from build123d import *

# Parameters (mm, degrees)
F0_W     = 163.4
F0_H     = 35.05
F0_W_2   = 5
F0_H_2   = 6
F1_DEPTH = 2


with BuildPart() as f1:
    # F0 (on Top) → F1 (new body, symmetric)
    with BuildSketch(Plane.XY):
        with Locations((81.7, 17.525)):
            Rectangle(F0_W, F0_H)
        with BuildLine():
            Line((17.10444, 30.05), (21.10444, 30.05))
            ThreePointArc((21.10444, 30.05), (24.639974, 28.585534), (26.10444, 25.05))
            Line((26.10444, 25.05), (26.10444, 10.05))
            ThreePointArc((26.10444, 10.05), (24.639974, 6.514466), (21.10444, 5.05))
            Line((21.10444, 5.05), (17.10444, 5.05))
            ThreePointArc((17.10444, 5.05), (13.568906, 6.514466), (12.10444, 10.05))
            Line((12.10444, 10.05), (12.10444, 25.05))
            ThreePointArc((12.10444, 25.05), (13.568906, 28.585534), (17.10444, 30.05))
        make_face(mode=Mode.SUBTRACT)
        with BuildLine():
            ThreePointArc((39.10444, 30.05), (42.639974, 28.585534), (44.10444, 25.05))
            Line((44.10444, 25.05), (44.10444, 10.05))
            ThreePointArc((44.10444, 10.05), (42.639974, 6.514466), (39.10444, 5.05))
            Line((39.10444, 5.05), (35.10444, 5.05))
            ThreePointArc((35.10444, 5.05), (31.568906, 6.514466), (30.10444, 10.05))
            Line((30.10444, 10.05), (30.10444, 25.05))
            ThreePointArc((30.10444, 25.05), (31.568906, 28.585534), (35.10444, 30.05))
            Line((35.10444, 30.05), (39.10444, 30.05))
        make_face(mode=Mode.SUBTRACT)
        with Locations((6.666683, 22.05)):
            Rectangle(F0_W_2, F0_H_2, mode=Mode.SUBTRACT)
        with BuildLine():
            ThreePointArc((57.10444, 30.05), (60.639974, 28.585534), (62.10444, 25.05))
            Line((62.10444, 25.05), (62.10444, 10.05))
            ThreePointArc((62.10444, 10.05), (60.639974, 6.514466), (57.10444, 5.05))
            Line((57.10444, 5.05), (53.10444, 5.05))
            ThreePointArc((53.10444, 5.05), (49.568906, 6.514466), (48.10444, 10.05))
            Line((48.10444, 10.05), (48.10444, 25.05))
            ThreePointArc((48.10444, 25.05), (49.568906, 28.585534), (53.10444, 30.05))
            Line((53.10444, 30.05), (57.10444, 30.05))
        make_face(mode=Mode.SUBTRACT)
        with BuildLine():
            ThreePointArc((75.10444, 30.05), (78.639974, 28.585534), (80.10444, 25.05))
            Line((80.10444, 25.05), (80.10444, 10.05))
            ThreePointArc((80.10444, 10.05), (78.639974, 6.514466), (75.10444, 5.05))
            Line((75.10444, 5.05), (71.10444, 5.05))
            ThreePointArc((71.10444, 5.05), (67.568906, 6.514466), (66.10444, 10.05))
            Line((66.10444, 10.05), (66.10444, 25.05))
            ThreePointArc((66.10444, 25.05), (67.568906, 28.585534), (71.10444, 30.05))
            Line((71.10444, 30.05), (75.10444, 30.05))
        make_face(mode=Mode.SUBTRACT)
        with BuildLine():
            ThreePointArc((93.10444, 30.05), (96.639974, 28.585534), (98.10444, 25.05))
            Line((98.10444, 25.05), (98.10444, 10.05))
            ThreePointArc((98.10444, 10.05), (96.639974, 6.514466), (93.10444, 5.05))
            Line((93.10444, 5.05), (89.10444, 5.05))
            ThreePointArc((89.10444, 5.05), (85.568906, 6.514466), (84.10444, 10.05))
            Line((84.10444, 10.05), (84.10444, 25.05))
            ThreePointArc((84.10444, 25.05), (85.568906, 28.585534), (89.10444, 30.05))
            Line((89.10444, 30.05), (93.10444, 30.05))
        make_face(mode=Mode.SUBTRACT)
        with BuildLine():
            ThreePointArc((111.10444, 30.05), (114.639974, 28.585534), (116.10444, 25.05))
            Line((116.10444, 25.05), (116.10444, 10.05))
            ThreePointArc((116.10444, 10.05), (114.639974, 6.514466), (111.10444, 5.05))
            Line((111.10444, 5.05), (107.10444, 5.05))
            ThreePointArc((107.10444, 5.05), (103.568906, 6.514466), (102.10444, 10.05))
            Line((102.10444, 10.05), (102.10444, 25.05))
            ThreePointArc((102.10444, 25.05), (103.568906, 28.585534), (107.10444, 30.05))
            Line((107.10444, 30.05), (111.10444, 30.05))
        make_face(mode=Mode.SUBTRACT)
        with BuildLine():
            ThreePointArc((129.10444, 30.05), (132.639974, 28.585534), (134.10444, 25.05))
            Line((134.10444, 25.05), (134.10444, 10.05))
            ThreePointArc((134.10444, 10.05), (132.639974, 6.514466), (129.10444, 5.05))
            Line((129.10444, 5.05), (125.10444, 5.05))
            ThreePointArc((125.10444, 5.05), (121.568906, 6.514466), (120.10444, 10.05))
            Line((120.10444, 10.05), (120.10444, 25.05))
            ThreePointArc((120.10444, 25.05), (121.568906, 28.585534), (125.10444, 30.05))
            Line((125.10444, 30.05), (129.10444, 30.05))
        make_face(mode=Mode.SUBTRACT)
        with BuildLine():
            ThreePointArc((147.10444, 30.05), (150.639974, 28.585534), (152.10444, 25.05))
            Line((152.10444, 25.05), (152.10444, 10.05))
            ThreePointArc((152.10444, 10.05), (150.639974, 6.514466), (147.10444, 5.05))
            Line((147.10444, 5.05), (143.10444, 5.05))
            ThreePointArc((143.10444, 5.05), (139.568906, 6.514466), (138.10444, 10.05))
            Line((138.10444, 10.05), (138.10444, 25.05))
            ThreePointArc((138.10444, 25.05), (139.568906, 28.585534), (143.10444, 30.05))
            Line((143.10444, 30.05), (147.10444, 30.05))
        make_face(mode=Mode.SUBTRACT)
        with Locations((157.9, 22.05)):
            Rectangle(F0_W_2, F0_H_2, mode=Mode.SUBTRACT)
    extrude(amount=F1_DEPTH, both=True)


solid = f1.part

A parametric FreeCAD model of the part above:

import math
import FreeCAD as App
import Part
import Sketcher

V = App.Vector


def add_polygon(sketch, points):
    """Adds a closed chain of lines whose ends are joined by coincident constraints."""
    first, n = sketch.GeometryCount, len(points)
    for a, b in zip(points, points[1:] + points[:1]):
        sketch.addGeometry(Part.LineSegment(App.Vector(*a, 0), App.Vector(*b, 0)), False)
    for i in range(n):
        sketch.addConstraint(Sketcher.Constraint("Coincident", first + i, 2, first + (i + 1) % n, 1))

doc = App.newDocument("Part")
body = doc.addObject("PartDesign::Body", "Body")

sketch1 = body.newObject("Sketcher::SketchObject", "Sketch")
sketch1.AttachmentSupport = (doc.getObject("XY_Plane"), [""])
sketch1.MapMode = "FlatFace"
add_polygon(sketch1, [(0, 35.05), (0, 0), (163.4, 0), (163.4, 35.05)])
sketch1.addGeometry(Part.ArcOfCircle(Part.Circle(V(17.10444, 25.05, 0), V(0, 0, 1), 5), math.radians(89.999996), math.radians(180.000004)), False)
sketch1.addGeometry(Part.LineSegment(V(17.10444, 30.05, 0), V(21.10444, 30.05, 0)), False)
sketch1.addGeometry(Part.ArcOfCircle(Part.Circle(V(21.10444, 25.05, 0), V(0, 0, 1), 5), math.radians(-0.000004), math.radians(90.000004)), False)
sketch1.addGeometry(Part.LineSegment(V(26.10444, 25.05, 0), V(26.10444, 10.05, 0)), False)
sketch1.addGeometry(Part.ArcOfCircle(Part.Circle(V(21.10444, 10.05, 0), V(0, 0, 1), 5), math.radians(-90.000004), math.radians(0.000004)), False)
sketch1.addGeometry(Part.LineSegment(V(21.10444, 5.05, 0), V(17.10444, 5.05, 0)), False)
sketch1.addGeometry(Part.ArcOfCircle(Part.Circle(V(17.10444, 10.05, 0), V(0, 0, 1), 5), math.radians(179.999996), math.radians(270.000004)), False)
sketch1.addGeometry(Part.LineSegment(V(12.10444, 10.05, 0), V(12.10444, 25.05, 0)), False)
sketch1.addGeometry(Part.LineSegment(V(35.10444, 30.05, 0), V(39.10444, 30.05, 0)), False)
sketch1.addGeometry(Part.ArcOfCircle(Part.Circle(V(39.10444, 25.05, 0), V(0, 0, 1), 5), math.radians(-0.000004), math.radians(90.000004)), False)
sketch1.addGeometry(Part.LineSegment(V(44.10444, 25.05, 0), V(44.10444, 10.05, 0)), False)
sketch1.addGeometry(Part.ArcOfCircle(Part.Circle(V(39.10444, 10.05, 0), V(0, 0, 1), 5), math.radians(-90.000004), math.radians(0.000004)), False)
sketch1.addGeometry(Part.LineSegment(V(39.10444, 5.05, 0), V(35.10444, 5.05, 0)), False)
sketch1.addGeometry(Part.ArcOfCircle(Part.Circle(V(35.10444, 10.05, 0), V(0, 0, 1), 5), math.radians(179.999996), math.radians(270.000004)), False)
sketch1.addGeometry(Part.LineSegment(V(30.10444, 10.05, 0), V(30.10444, 25.05, 0)), False)
sketch1.addGeometry(Part.ArcOfCircle(Part.Circle(V(35.10444, 25.05, 0), V(0, 0, 1), 5), math.radians(89.999996), math.radians(180.000004)), False)
add_polygon(sketch1, [(9.166683, 19.05), (4.166683, 19.05), (4.166683, 25.05), (9.166683, 25.05)])
sketch1.addGeometry(Part.LineSegment(V(53.10444, 30.05, 0), V(57.10444, 30.05, 0)), False)
sketch1.addGeometry(Part.ArcOfCircle(Part.Circle(V(57.10444, 25.05, 0), V(0, 0, 1), 5), math.radians(-0.000004), math.radians(90.000004)), False)
sketch1.addGeometry(Part.LineSegment(V(62.10444, 25.05, 0), V(62.10444, 10.05, 0)), False)
sketch1.addGeometry(Part.ArcOfCircle(Part.Circle(V(57.10444, 10.05, 0), V(0, 0, 1), 5), math.radians(-90.000004), math.radians(0.000004)), False)
sketch1.addGeometry(Part.LineSegment(V(57.10444, 5.05, 0), V(53.10444, 5.05, 0)), False)
sketch1.addGeometry(Part.ArcOfCircle(Part.Circle(V(53.10444, 10.05, 0), V(0, 0, 1), 5), math.radians(179.999996), math.radians(270.000004)), False)
sketch1.addGeometry(Part.LineSegment(V(48.10444, 10.05, 0), V(48.10444, 25.05, 0)), False)
sketch1.addGeometry(Part.ArcOfCircle(Part.Circle(V(53.10444, 25.05, 0), V(0, 0, 1), 5), math.radians(89.999996), math.radians(180.000004)), False)
sketch1.addGeometry(Part.LineSegment(V(71.10444, 30.05, 0), V(75.10444, 30.05, 0)), False)
sketch1.addGeometry(Part.ArcOfCircle(Part.Circle(V(75.10444, 25.05, 0), V(0, 0, 1), 5), math.radians(-0.000004), math.radians(90.000004)), False)
sketch1.addGeometry(Part.LineSegment(V(80.10444, 25.05, 0), V(80.10444, 10.05, 0)), False)
sketch1.addGeometry(Part.ArcOfCircle(Part.Circle(V(75.10444, 10.05, 0), V(0, 0, 1), 5), math.radians(-90.000004), math.radians(0.000004)), False)
sketch1.addGeometry(Part.LineSegment(V(75.10444, 5.05, 0), V(71.10444, 5.05, 0)), False)
sketch1.addGeometry(Part.ArcOfCircle(Part.Circle(V(71.10444, 10.05, 0), V(0, 0, 1), 5), math.radians(179.999996), math.radians(270.000004)), False)
sketch1.addGeometry(Part.LineSegment(V(66.10444, 10.05, 0), V(66.10444, 25.05, 0)), False)
sketch1.addGeometry(Part.ArcOfCircle(Part.Circle(V(71.10444, 25.05, 0), V(0, 0, 1), 5), math.radians(89.999996), math.radians(180.000004)), False)
sketch1.addGeometry(Part.LineSegment(V(89.10444, 30.05, 0), V(93.10444, 30.05, 0)), False)
sketch1.addGeometry(Part.ArcOfCircle(Part.Circle(V(93.10444, 25.05, 0), V(0, 0, 1), 5), math.radians(-0.000004), math.radians(90.000004)), False)
sketch1.addGeometry(Part.LineSegment(V(98.10444, 25.05, 0), V(98.10444, 10.05, 0)), False)
sketch1.addGeometry(Part.ArcOfCircle(Part.Circle(V(93.10444, 10.05, 0), V(0, 0, 1), 5), math.radians(-90.000004), math.radians(0.000004)), False)
sketch1.addGeometry(Part.LineSegment(V(93.10444, 5.05, 0), V(89.10444, 5.05, 0)), False)
sketch1.addGeometry(Part.ArcOfCircle(Part.Circle(V(89.10444, 10.05, 0), V(0, 0, 1), 5), math.radians(179.999996), math.radians(270.000004)), False)
sketch1.addGeometry(Part.LineSegment(V(84.10444, 10.05, 0), V(84.10444, 25.05, 0)), False)
sketch1.addGeometry(Part.ArcOfCircle(Part.Circle(V(89.10444, 25.05, 0), V(0, 0, 1), 5), math.radians(89.999996), math.radians(180.000004)), False)
sketch1.addGeometry(Part.LineSegment(V(107.10444, 30.05, 0), V(111.10444, 30.05, 0)), False)
sketch1.addGeometry(Part.ArcOfCircle(Part.Circle(V(111.10444, 25.05, 0), V(0, 0, 1), 5), math.radians(-0.000004), math.radians(90.000004)), False)
sketch1.addGeometry(Part.LineSegment(V(116.10444, 25.05, 0), V(116.10444, 10.05, 0)), False)
sketch1.addGeometry(Part.ArcOfCircle(Part.Circle(V(111.10444, 10.05, 0), V(0, 0, 1), 5), math.radians(-90.000004), math.radians(0.000004)), False)
sketch1.addGeometry(Part.LineSegment(V(111.10444, 5.05, 0), V(107.10444, 5.05, 0)), False)
sketch1.addGeometry(Part.ArcOfCircle(Part.Circle(V(107.10444, 10.05, 0), V(0, 0, 1), 5), math.radians(179.999996), math.radians(270.000004)), False)
sketch1.addGeometry(Part.LineSegment(V(102.10444, 10.05, 0), V(102.10444, 25.05, 0)), False)
sketch1.addGeometry(Part.ArcOfCircle(Part.Circle(V(107.10444, 25.05, 0), V(0, 0, 1), 5), math.radians(89.999996), math.radians(180.000004)), False)
sketch1.addGeometry(Part.LineSegment(V(125.10444, 30.05, 0), V(129.10444, 30.05, 0)), False)
sketch1.addGeometry(Part.ArcOfCircle(Part.Circle(V(129.10444, 25.05, 0), V(0, 0, 1), 5), math.radians(-0.000004), math.radians(90.000004)), False)
sketch1.addGeometry(Part.LineSegment(V(134.10444, 25.05, 0), V(134.10444, 10.05, 0)), False)
sketch1.addGeometry(Part.ArcOfCircle(Part.Circle(V(129.10444, 10.05, 0), V(0, 0, 1), 5), math.radians(-90.000004), math.radians(0.000004)), False)
sketch1.addGeometry(Part.LineSegment(V(129.10444, 5.05, 0), V(125.10444, 5.05, 0)), False)
sketch1.addGeometry(Part.ArcOfCircle(Part.Circle(V(125.10444, 10.05, 0), V(0, 0, 1), 5), math.radians(179.999996), math.radians(270.000004)), False)
sketch1.addGeometry(Part.LineSegment(V(120.10444, 10.05, 0), V(120.10444, 25.05, 0)), False)
sketch1.addGeometry(Part.ArcOfCircle(Part.Circle(V(125.10444, 25.05, 0), V(0, 0, 1), 5), math.radians(89.999996), math.radians(180.000004)), False)
sketch1.addGeometry(Part.LineSegment(V(143.10444, 30.05, 0), V(147.10444, 30.05, 0)), False)
sketch1.addGeometry(Part.ArcOfCircle(Part.Circle(V(147.10444, 25.05, 0), V(0, 0, 1), 5), math.radians(-0.000004), math.radians(90.000004)), False)
sketch1.addGeometry(Part.LineSegment(V(152.10444, 25.05, 0), V(152.10444, 10.05, 0)), False)
sketch1.addGeometry(Part.ArcOfCircle(Part.Circle(V(147.10444, 10.05, 0), V(0, 0, 1), 5), math.radians(-90.000004), math.radians(0.000004)), False)
sketch1.addGeometry(Part.LineSegment(V(147.10444, 5.05, 0), V(143.10444, 5.05, 0)), False)
sketch1.addGeometry(Part.ArcOfCircle(Part.Circle(V(143.10444, 10.05, 0), V(0, 0, 1), 5), math.radians(179.999996), math.radians(270.000004)), False)
sketch1.addGeometry(Part.LineSegment(V(138.10444, 10.05, 0), V(138.10444, 25.05, 0)), False)
sketch1.addGeometry(Part.ArcOfCircle(Part.Circle(V(143.10444, 25.05, 0), V(0, 0, 1), 5), math.radians(89.999996), math.radians(180.000004)), False)
add_polygon(sketch1, [(160.4, 19.05), (155.4, 19.05), (155.4, 25.05), (160.4, 25.05)])
sketch1.addConstraint([
    Sketcher.Constraint("Tangent", 4, 1, 5, 1),
    Sketcher.Constraint("Tangent", 5, 2, 6, 2),
    Sketcher.Constraint("Tangent", 6, 1, 7, 1),
    Sketcher.Constraint("Tangent", 7, 2, 8, 2),
    Sketcher.Constraint("Tangent", 8, 1, 9, 1),
    Sketcher.Constraint("Tangent", 9, 2, 10, 2),
    Sketcher.Constraint("Tangent", 10, 1, 11, 1),
    Sketcher.Constraint("Tangent", 11, 2, 4, 2),
    Sketcher.Constraint("Tangent", 12, 2, 13, 2),
    Sketcher.Constraint("Tangent", 13, 1, 14, 1),
    Sketcher.Constraint("Tangent", 14, 2, 15, 2),
    Sketcher.Constraint("Tangent", 15, 1, 16, 1),
    Sketcher.Constraint("Tangent", 16, 2, 17, 2),
    Sketcher.Constraint("Tangent", 17, 1, 18, 1),
    Sketcher.Constraint("Tangent", 18, 2, 19, 2),
    Sketcher.Constraint("Tangent", 19, 1, 12, 1),
    Sketcher.Constraint("Tangent", 24, 2, 25, 2),
    Sketcher.Constraint("Tangent", 25, 1, 26, 1),
    Sketcher.Constraint("Tangent", 26, 2, 27, 2),
    Sketcher.Constraint("Tangent", 27, 1, 28, 1),
    Sketcher.Constraint("Tangent", 28, 2, 29, 2),
    Sketcher.Constraint("Tangent", 29, 1, 30, 1),
    Sketcher.Constraint("Tangent", 30, 2, 31, 2),
    Sketcher.Constraint("Tangent", 31, 1, 24, 1),
    Sketcher.Constraint("Tangent", 32, 2, 33, 2),
    Sketcher.Constraint("Tangent", 33, 1, 34, 1),
    Sketcher.Constraint("Tangent", 34, 2, 35, 2),
    Sketcher.Constraint("Tangent", 35, 1, 36, 1),
    Sketcher.Constraint("Tangent", 36, 2, 37, 2),
    Sketcher.Constraint("Tangent", 37, 1, 38, 1),
    Sketcher.Constraint("Tangent", 38, 2, 39, 2),
    Sketcher.Constraint("Tangent", 39, 1, 32, 1),
    Sketcher.Constraint("Tangent", 40, 2, 41, 2),
    Sketcher.Constraint("Tangent", 41, 1, 42, 1),
    Sketcher.Constraint("Tangent", 42, 2, 43, 2),
    Sketcher.Constraint("Tangent", 43, 1, 44, 1),
    Sketcher.Constraint("Tangent", 44, 2, 45, 2),
    Sketcher.Constraint("Tangent", 45, 1, 46, 1),
    Sketcher.Constraint("Tangent", 46, 2, 47, 2),
    Sketcher.Constraint("Tangent", 47, 1, 40, 1),
    Sketcher.Constraint("Tangent", 48, 2, 49, 2),
    Sketcher.Constraint("Tangent", 49, 1, 50, 1),
    Sketcher.Constraint("Tangent", 50, 2, 51, 2),
    Sketcher.Constraint("Tangent", 51, 1, 52, 1),
    Sketcher.Constraint("Tangent", 52, 2, 53, 2),
    Sketcher.Constraint("Tangent", 53, 1, 54, 1),
    Sketcher.Constraint("Tangent", 54, 2, 55, 2),
    Sketcher.Constraint("Tangent", 55, 1, 48, 1),
    Sketcher.Constraint("Tangent", 56, 2, 57, 2),
    Sketcher.Constraint("Tangent", 57, 1, 58, 1),
    Sketcher.Constraint("Tangent", 58, 2, 59, 2),
    Sketcher.Constraint("Tangent", 59, 1, 60, 1),
    Sketcher.Constraint("Tangent", 60, 2, 61, 2),
    Sketcher.Constraint("Tangent", 61, 1, 62, 1),
    Sketcher.Constraint("Tangent", 62, 2, 63, 2),
    Sketcher.Constraint("Tangent", 63, 1, 56, 1),
    Sketcher.Constraint("Tangent", 64, 2, 65, 2),
    Sketcher.Constraint("Tangent", 65, 1, 66, 1),
    Sketcher.Constraint("Tangent", 66, 2, 67, 2),
    Sketcher.Constraint("Tangent", 67, 1, 68, 1),
    Sketcher.Constraint("Tangent", 68, 2, 69, 2),
    Sketcher.Constraint("Tangent", 69, 1, 70, 1),
    Sketcher.Constraint("Tangent", 70, 2, 71, 2),
    Sketcher.Constraint("Tangent", 71, 1, 64, 1),
    Sketcher.Constraint("Vertical", 0),
    Sketcher.Constraint("Horizontal", 1),
    Sketcher.Constraint("Vertical", 2),
    Sketcher.Constraint("Horizontal", 3),
    Sketcher.Constraint("Horizontal", 5),
    Sketcher.Constraint("Vertical", 7),
    Sketcher.Constraint("Horizontal", 9),
    Sketcher.Constraint("Vertical", 11),
    Sketcher.Constraint("Horizontal", 12),
    Sketcher.Constraint("Vertical", 14),
    Sketcher.Constraint("Horizontal", 16),
    Sketcher.Constraint("Vertical", 18),
    Sketcher.Constraint("Horizontal", 20),
    Sketcher.Constraint("Vertical", 21),
    Sketcher.Constraint("Horizontal", 22),
    Sketcher.Constraint("Vertical", 23),
    Sketcher.Constraint("Horizontal", 24),
    Sketcher.Constraint("Vertical", 26),
    Sketcher.Constraint("Horizontal", 28),
    Sketcher.Constraint("Vertical", 30),
    Sketcher.Constraint("Horizontal", 32),
    Sketcher.Constraint("Vertical", 34),
    Sketcher.Constraint("Horizontal", 36),
    Sketcher.Constraint("Vertical", 38),
    Sketcher.Constraint("Horizontal", 40),
    Sketcher.Constraint("Vertical", 42),
    Sketcher.Constraint("Horizontal", 44),
    Sketcher.Constraint("Vertical", 46),
    Sketcher.Constraint("Horizontal", 48),
    Sketcher.Constraint("Vertical", 50),
    Sketcher.Constraint("Horizontal", 52),
    Sketcher.Constraint("Vertical", 54),
    Sketcher.Constraint("Horizontal", 56),
    Sketcher.Constraint("Vertical", 58),
    Sketcher.Constraint("Horizontal", 60),
    Sketcher.Constraint("Vertical", 62),
    Sketcher.Constraint("Horizontal", 64),
    Sketcher.Constraint("Vertical", 66),
    Sketcher.Constraint("Horizontal", 68),
    Sketcher.Constraint("Vertical", 70),
    Sketcher.Constraint("Horizontal", 72),
    Sketcher.Constraint("Vertical", 73),
    Sketcher.Constraint("Horizontal", 74),
    Sketcher.Constraint("Vertical", 75),
    Sketcher.Constraint("Coincident", 0, 2, -1, 1),
    Sketcher.Constraint("Equal", 4, 6),
    Sketcher.Constraint("Equal", 6, 8),
    Sketcher.Constraint("Equal", 8, 10),
    Sketcher.Constraint("Equal", 10, 13),
    Sketcher.Constraint("Equal", 13, 15),
    Sketcher.Constraint("Equal", 15, 17),
    Sketcher.Constraint("Equal", 17, 19),
    Sketcher.Constraint("Equal", 19, 25),
    Sketcher.Constraint("Equal", 25, 27),
    Sketcher.Constraint("Equal", 27, 29),
    Sketcher.Constraint("Equal", 29, 31),
    Sketcher.Constraint("Equal", 31, 33),
    Sketcher.Constraint("Equal", 33, 35),
    Sketcher.Constraint("Equal", 35, 37),
    Sketcher.Constraint("Equal", 37, 39),
    Sketcher.Constraint("Equal", 39, 41),
    Sketcher.Constraint("Equal", 41, 43),
    Sketcher.Constraint("Equal", 43, 45),
    Sketcher.Constraint("Equal", 45, 47),
    Sketcher.Constraint("Equal", 47, 49),
    Sketcher.Constraint("Equal", 49, 51),
    Sketcher.Constraint("Equal", 51, 53),
    Sketcher.Constraint("Equal", 53, 55),
    Sketcher.Constraint("Equal", 55, 57),
    Sketcher.Constraint("Equal", 57, 59),
    Sketcher.Constraint("Equal", 59, 61),
    Sketcher.Constraint("Equal", 61, 63),
    Sketcher.Constraint("Equal", 63, 65),
    Sketcher.Constraint("Equal", 65, 67),
    Sketcher.Constraint("Equal", 67, 69),
    Sketcher.Constraint("Equal", 69, 71),
    Sketcher.Constraint("Horizontal", 6, 3, 13, 3),
    Sketcher.Constraint("Horizontal", 10, 3, 15, 3),
    Sketcher.Constraint("Horizontal", 19, 3, 25, 3),
    Sketcher.Constraint("Horizontal", 17, 3, 27, 3),
    Sketcher.Constraint("Horizontal", 31, 3, 33, 3),
    Sketcher.Constraint("Horizontal", 29, 3, 35, 3),
    Sketcher.Constraint("Horizontal", 39, 3, 41, 3),
    Sketcher.Constraint("Horizontal", 37, 3, 43, 3),
    Sketcher.Constraint("Horizontal", 47, 3, 49, 3),
    Sketcher.Constraint("Horizontal", 45, 3, 51, 3),
    Sketcher.Constraint("Horizontal", 55, 3, 57, 3),
    Sketcher.Constraint("Horizontal", 53, 3, 59, 3),
    Sketcher.Constraint("Horizontal", 63, 3, 65, 3),
    Sketcher.Constraint("Horizontal", 61, 3, 67, 3),
    Sketcher.Constraint("Horizontal", 18, 2, 21, 2),
    Sketcher.Constraint("Horizontal", 23, 2, 72, 2),
    Sketcher.Constraint("Horizontal", 70, 2, 73, 2),
    Sketcher.Constraint("Equal", 9, 12),
    Sketcher.Constraint("Equal", 16, 24),
    Sketcher.Constraint("Equal", 28, 32),
    Sketcher.Constraint("Equal", 36, 40),
    Sketcher.Constraint("Equal", 44, 48),
    Sketcher.Constraint("Equal", 52, 56),
    Sketcher.Constraint("Equal", 60, 64),
    Sketcher.Constraint("Equal", 22, 72),
    Sketcher.Constraint("Radius", 4, 5.0),
    Sketcher.Constraint("DistanceX", 5, 1, 5, 2, 4.0),
    Sketcher.Constraint("DistanceX", 20, 2, 20, 1, 5.0),
    Sketcher.Constraint("DistanceY", 7, 2, 7, 1, 15.0),
    Sketcher.Constraint("DistanceY", 21, 1, 21, 2, 6.0),
    Sketcher.Constraint("DistanceX", 1, 1, 1, 2, 163.4),
    Sketcher.Constraint("DistanceY", 0, 2, 0, 1, 35.05),
    Sketcher.Constraint("DistanceX", -1, 1, 72, 2, 155.4),
    Sketcher.Constraint("DistanceY", -1, 1, 4, 3, 25.05),
    Sketcher.Constraint("DistanceX", -1, 1, 4, 3, 17.10444),
    Sketcher.Constraint("DistanceX", -1, 1, 13, 3, 39.10444),
    Sketcher.Constraint("DistanceX", -1, 1, 25, 3, 57.10444),
    Sketcher.Constraint("DistanceX", -1, 1, 33, 3, 75.10444),
    Sketcher.Constraint("DistanceX", -1, 1, 41, 3, 93.10444),
    Sketcher.Constraint("DistanceX", -1, 1, 49, 3, 111.10444),
    Sketcher.Constraint("DistanceX", -1, 1, 57, 3, 129.10444),
    Sketcher.Constraint("DistanceX", -1, 1, 65, 3, 147.10444),
    Sketcher.Constraint("DistanceX", -1, 1, 20, 2, 4.166683),
])
pad1 = body.newObject("PartDesign::Pad", "Pad")
pad1.Profile = sketch1
pad1.Length = 4
pad1.Midplane = True

doc.recompute()
